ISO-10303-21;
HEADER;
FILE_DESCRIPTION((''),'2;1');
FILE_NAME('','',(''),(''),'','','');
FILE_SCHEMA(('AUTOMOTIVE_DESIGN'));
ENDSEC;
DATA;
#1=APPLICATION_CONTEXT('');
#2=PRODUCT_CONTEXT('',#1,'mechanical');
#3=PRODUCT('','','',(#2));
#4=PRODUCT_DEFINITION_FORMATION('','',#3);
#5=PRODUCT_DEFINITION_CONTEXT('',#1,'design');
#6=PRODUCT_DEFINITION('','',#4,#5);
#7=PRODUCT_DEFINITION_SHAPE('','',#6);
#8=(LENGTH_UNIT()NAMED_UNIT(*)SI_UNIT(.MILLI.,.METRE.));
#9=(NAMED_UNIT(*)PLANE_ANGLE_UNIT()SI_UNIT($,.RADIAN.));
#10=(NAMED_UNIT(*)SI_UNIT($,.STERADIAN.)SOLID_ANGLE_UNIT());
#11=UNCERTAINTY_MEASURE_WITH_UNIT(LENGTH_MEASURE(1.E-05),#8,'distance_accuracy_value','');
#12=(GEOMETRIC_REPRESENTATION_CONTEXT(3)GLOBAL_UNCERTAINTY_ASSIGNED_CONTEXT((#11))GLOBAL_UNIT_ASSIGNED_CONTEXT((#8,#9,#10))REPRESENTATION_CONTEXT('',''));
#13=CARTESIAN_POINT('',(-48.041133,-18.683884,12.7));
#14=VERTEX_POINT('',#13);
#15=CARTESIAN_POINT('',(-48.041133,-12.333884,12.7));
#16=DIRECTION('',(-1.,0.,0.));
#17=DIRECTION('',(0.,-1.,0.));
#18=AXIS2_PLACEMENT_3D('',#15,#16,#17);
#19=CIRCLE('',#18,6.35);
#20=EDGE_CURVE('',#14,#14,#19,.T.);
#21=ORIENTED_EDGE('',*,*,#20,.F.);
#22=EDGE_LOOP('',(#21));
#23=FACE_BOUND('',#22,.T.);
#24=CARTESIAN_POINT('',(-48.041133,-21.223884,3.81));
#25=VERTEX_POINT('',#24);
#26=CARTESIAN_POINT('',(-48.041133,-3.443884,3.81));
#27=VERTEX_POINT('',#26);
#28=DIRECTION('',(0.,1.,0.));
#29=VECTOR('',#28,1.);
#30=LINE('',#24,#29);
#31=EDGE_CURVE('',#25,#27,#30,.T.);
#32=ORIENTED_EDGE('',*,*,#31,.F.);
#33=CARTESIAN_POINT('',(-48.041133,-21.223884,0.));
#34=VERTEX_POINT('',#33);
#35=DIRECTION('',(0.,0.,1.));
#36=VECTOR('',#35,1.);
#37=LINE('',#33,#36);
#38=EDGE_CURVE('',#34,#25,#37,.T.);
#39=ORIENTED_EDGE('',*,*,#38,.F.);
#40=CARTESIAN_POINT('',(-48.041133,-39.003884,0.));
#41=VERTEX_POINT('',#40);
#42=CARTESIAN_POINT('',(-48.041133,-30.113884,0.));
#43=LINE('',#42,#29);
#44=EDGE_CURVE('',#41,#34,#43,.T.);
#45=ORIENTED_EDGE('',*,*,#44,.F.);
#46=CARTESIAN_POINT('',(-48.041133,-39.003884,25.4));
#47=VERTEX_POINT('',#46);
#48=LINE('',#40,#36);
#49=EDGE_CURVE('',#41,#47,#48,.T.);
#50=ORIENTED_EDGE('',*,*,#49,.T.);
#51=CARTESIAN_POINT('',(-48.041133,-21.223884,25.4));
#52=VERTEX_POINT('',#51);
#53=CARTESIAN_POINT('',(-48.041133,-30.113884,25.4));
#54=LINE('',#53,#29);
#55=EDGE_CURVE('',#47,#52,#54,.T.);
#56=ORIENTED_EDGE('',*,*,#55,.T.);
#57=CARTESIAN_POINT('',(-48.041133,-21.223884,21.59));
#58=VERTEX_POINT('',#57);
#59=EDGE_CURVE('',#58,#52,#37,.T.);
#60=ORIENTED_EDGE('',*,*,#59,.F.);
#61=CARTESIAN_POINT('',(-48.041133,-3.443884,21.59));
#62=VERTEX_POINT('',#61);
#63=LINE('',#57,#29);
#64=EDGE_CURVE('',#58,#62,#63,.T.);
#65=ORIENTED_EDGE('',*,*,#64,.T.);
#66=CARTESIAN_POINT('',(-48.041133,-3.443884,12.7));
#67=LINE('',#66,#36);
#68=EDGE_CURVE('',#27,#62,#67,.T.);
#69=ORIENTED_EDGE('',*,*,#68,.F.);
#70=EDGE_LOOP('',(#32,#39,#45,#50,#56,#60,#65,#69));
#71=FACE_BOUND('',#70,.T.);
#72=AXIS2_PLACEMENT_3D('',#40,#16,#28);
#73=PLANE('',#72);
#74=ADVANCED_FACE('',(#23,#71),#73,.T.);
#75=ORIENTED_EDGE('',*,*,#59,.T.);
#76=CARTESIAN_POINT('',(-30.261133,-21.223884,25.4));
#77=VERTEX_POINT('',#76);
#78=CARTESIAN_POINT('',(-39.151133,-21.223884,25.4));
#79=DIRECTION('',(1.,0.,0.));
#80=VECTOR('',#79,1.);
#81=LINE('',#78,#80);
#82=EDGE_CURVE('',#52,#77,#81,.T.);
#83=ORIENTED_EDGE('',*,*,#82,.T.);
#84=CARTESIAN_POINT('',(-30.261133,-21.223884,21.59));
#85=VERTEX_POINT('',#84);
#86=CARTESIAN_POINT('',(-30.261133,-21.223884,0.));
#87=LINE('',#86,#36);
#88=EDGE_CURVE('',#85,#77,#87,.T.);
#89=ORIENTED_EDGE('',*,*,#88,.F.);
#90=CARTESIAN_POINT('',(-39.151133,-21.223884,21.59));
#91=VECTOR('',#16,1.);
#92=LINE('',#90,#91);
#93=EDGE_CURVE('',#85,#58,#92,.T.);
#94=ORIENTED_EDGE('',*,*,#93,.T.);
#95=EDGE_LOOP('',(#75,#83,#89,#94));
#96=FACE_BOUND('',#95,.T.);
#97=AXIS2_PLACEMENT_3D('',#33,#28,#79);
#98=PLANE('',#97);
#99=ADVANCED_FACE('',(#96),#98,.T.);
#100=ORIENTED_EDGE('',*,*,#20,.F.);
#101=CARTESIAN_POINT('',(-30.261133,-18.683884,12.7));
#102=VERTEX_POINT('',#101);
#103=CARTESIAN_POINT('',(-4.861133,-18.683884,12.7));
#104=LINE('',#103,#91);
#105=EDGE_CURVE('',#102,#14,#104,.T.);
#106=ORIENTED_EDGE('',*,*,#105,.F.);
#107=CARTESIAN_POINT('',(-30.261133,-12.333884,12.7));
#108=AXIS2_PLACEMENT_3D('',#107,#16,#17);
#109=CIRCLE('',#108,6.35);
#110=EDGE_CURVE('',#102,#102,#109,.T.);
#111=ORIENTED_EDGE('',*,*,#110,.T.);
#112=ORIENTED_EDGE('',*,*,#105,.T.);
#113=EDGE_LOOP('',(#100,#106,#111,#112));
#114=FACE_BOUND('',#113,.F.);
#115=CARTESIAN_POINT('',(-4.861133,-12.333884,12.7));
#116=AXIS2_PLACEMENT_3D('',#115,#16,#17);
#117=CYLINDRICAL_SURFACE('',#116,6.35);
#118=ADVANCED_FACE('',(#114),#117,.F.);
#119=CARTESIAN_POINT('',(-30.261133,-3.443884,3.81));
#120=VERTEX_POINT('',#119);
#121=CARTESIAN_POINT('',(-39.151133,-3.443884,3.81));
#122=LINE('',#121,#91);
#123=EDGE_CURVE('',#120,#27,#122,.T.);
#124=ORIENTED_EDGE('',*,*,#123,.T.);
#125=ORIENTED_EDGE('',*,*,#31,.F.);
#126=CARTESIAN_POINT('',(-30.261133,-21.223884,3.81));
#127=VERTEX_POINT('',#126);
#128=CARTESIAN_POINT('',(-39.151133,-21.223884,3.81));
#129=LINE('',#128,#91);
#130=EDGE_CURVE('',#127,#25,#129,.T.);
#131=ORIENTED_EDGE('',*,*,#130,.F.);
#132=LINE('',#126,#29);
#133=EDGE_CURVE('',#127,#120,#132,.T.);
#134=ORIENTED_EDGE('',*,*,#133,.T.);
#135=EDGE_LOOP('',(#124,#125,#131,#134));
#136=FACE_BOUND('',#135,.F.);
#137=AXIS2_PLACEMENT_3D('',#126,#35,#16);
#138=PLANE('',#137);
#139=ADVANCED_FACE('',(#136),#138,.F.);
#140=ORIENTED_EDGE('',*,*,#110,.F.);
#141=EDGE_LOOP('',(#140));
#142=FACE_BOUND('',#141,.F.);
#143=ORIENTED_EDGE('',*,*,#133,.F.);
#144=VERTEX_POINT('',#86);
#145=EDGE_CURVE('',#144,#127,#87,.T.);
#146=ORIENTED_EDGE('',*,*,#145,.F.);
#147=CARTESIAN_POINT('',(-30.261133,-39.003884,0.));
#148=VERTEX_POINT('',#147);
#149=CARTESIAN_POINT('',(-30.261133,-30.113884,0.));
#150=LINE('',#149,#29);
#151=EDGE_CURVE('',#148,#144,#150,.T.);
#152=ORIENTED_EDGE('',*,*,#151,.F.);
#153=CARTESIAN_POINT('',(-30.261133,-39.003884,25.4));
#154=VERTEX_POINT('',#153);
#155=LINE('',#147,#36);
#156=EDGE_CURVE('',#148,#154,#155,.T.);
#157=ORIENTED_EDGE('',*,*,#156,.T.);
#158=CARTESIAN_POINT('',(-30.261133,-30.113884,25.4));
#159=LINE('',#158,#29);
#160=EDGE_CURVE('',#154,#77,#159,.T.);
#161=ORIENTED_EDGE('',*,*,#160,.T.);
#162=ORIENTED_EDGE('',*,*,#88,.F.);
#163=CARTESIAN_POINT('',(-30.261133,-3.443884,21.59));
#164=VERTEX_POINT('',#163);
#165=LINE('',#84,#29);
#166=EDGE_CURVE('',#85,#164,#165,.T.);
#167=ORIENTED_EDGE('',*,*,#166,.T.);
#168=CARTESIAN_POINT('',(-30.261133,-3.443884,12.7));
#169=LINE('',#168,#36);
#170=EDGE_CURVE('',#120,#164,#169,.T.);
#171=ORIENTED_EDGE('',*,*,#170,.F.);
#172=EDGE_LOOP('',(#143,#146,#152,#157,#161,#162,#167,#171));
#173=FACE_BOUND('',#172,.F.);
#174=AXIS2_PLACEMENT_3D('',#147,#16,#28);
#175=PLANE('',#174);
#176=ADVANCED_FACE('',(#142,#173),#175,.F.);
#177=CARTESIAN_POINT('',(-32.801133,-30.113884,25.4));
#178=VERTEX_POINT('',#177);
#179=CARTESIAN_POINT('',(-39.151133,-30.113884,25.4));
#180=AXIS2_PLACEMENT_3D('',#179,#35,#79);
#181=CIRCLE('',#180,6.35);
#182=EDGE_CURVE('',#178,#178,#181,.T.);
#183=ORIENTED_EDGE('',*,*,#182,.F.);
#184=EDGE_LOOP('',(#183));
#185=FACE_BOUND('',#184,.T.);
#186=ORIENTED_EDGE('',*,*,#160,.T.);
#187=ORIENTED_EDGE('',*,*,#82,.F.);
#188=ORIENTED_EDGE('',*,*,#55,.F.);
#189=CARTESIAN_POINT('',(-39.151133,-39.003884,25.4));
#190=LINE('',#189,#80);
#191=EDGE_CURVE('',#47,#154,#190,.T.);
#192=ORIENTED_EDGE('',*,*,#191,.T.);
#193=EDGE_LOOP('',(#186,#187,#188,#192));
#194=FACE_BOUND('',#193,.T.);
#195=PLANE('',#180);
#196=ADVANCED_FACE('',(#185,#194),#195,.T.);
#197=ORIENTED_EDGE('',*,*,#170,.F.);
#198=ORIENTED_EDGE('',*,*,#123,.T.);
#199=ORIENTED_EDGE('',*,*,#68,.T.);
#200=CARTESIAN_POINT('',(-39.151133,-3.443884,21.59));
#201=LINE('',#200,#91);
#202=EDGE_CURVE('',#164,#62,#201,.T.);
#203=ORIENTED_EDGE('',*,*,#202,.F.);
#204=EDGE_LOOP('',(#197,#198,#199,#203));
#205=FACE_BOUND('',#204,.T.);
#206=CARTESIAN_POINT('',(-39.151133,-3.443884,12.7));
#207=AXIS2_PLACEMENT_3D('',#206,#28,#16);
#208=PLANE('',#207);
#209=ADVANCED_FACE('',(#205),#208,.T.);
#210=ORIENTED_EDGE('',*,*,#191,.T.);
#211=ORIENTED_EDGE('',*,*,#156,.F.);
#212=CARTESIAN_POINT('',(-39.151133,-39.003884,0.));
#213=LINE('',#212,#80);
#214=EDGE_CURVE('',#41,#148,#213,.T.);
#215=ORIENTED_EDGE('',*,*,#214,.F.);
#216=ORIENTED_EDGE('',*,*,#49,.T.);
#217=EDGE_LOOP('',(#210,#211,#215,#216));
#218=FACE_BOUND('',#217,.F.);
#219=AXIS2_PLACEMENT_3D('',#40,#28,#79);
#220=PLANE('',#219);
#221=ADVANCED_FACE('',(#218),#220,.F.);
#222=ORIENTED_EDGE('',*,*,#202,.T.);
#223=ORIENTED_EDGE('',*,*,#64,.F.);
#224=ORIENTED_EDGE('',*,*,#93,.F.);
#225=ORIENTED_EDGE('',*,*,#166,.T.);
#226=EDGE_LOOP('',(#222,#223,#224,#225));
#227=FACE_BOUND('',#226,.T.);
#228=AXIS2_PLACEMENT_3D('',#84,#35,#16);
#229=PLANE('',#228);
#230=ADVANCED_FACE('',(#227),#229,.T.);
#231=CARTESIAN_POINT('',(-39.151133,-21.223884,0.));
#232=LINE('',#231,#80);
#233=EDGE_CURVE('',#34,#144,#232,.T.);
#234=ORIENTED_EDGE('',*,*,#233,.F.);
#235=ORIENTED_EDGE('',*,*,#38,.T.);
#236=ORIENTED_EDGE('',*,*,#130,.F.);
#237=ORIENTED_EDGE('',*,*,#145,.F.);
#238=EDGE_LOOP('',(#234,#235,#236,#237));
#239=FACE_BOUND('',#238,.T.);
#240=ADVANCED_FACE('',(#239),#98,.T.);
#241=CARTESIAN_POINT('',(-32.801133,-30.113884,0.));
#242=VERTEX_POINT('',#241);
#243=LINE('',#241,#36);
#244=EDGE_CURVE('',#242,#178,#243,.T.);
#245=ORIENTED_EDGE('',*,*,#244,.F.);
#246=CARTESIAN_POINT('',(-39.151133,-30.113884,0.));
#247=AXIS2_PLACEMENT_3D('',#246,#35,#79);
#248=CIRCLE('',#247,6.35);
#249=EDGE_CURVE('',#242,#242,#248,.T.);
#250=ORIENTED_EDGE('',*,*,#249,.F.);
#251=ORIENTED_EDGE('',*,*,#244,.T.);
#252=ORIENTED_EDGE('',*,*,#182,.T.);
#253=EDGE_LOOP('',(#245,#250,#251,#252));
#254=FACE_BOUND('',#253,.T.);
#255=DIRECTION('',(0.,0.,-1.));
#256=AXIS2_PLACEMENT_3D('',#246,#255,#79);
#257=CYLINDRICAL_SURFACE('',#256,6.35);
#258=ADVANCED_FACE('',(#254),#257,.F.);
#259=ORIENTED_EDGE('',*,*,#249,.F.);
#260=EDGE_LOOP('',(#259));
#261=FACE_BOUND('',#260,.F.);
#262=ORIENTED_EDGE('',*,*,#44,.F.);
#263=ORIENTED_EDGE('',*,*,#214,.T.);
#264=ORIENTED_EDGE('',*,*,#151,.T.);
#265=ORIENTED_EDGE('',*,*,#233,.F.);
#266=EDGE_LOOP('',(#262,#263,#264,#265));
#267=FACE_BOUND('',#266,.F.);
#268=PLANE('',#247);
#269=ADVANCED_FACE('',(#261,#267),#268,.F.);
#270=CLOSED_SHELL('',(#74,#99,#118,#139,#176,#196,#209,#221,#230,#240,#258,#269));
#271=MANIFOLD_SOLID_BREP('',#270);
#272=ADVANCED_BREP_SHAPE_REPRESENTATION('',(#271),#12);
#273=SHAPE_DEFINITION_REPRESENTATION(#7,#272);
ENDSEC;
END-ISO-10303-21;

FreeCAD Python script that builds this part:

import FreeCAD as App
import Part
import Sketcher
Q = App.Units.Quantity

doc = App.newDocument("Part")
body = doc.addObject("PartDesign::Body", "Body")

# Sketch on XY plane
sketch1 = body.newObject("Sketcher::SketchObject", "Sketch")
sketch1.AttachmentSupport = (doc.getObject("XY_Plane"), [""])
sketch1.MapMode = "FlatFace"
sketch1.addGeometry([
    Part.LineSegment(App.Vector(-48, -21, 0), App.Vector(-48, -39, 0)),  # 0
    Part.LineSegment(App.Vector(-48, -39, 0), App.Vector(-30, -39, 0)),  # 1
    Part.LineSegment(App.Vector(-30, -39, 0), App.Vector(-30, -21, 0)),  # 2
    Part.LineSegment(App.Vector(-30, -21, 0), App.Vector(-48, -21, 0)),  # 3
    Part.Circle(App.Vector(-39, -30, 0), App.Vector(0, 0, 1), 6),  # 4
], False)
sketch1.addConstraint([
    Sketcher.Constraint("Coincident", 0, 2, 1, 1),
    Sketcher.Constraint("Coincident", 1, 2, 2, 1),
    Sketcher.Constraint("Coincident", 2, 2, 3, 1),
    Sketcher.Constraint("Coincident", 3, 2, 0, 1),
    Sketcher.Constraint("Vertical", 0),
    Sketcher.Constraint("Horizontal", 1),
    Sketcher.Constraint("Vertical", 2),
    Sketcher.Constraint("Horizontal", 3),
    Sketcher.Constraint("Equal", 3, 0),
    Sketcher.Constraint("Diameter", 4, Q("0.5 in")),
    Sketcher.Constraint("DistanceX", 1, 1, 1, 2, Q("0.7 in")),
    Sketcher.Constraint("DistanceX", 0, 2, 4, 3, Q("0.35 in")),
    Sketcher.Constraint("DistanceY", 0, 2, 4, 3, Q("0.35 in")),
    Sketcher.Constraint("DistanceX", 4, 3, -1, 1, 39.151133),
    Sketcher.Constraint("DistanceY", 4, 3, -1, 1, 30.113884),
])
pad1 = body.newObject("PartDesign::Pad", "Pad")
pad1.Profile = sketch1
pad1.Length = Q("1 in")

# Sketch on XZ plane
sketch2 = body.newObject("Sketcher::SketchObject", "Sketch001")
sketch2.AttachmentSupport = (doc.getObject("XZ_Plane"), [""])
sketch2.MapMode = "FlatFace"
sketch2.AttachmentOffset = App.Placement(App.Vector(0, 0, 21.223884), App.Rotation())
sketch2.addGeometry([
    Part.LineSegment(App.Vector(-30, 22, 0), App.Vector(-30, 4, 0)),
    Part.LineSegment(App.Vector(-30, 4, 0), App.Vector(-48, 4, 0)),
    Part.LineSegment(App.Vector(-48, 4, 0), App.Vector(-48, 22, 0)),
    Part.LineSegment(App.Vector(-48, 22, 0), App.Vector(-30, 22, 0)),
], False)
sketch2.addConstraint([
    Sketcher.Constraint("Coincident", 0, 2, 1, 1),
    Sketcher.Constraint("Coincident", 1, 2, 2, 1),
    Sketcher.Constraint("Coincident", 2, 2, 3, 1),
    Sketcher.Constraint("Coincident", 3, 2, 0, 1),
    Sketcher.Constraint("Vertical", 0),
    Sketcher.Constraint("Horizontal", 1),
    Sketcher.Constraint("Vertical", 2),
    Sketcher.Constraint("Horizontal", 3),
    Sketcher.Constraint("Equal", 3, 0),
    Sketcher.Constraint("DistanceX", 1, 2, 1, 1, Q("0.7 in")),
    Sketcher.Constraint("DistanceY", -1, 1, 0, 2, Q("0.15 in")),
    Sketcher.Constraint("DistanceX", 0, 2, -1, 1, 30.261133),
])
pad2 = body.newObject("PartDesign::Pad", "Pad001")
pad2.Profile = sketch2
pad2.Length = Q("0.7 in")
pad2.Reversed = True

# Sketch on YZ plane
sketch3 = body.newObject("Sketcher::SketchObject", "Sketch002")
sketch3.AttachmentSupport = (doc.getObject("YZ_Plane"), [""])
sketch3.MapMode = "FlatFace"
sketch3.AttachmentOffset = App.Placement(App.Vector(0, 0, -30.261133), App.Rotation())
sketch3.addGeometry(Part.Circle(App.Vector(-12, 13, 0), App.Vector(0, 0, 1), 6), False)
sketch3.addConstraint([
    Sketcher.Constraint("Diameter", 0, Q("0.5 in")),
    Sketcher.Constraint("DistanceY", -1, 1, 0, 3, Q("0.5 in")),
    Sketcher.Constraint("DistanceX", 0, 3, -1, 1, 12.333884),
])
doc.recompute()
hole = body.newObject("PartDesign::Hole", "Hole")
hole.Profile = sketch3
hole.ThreadType = "None"
hole.Diameter = Q("0.5 in")
hole.DepthType = "Dimension"
hole.Depth = Q("1 in")
hole.DrillPoint = "Flat"

doc.recompute()
